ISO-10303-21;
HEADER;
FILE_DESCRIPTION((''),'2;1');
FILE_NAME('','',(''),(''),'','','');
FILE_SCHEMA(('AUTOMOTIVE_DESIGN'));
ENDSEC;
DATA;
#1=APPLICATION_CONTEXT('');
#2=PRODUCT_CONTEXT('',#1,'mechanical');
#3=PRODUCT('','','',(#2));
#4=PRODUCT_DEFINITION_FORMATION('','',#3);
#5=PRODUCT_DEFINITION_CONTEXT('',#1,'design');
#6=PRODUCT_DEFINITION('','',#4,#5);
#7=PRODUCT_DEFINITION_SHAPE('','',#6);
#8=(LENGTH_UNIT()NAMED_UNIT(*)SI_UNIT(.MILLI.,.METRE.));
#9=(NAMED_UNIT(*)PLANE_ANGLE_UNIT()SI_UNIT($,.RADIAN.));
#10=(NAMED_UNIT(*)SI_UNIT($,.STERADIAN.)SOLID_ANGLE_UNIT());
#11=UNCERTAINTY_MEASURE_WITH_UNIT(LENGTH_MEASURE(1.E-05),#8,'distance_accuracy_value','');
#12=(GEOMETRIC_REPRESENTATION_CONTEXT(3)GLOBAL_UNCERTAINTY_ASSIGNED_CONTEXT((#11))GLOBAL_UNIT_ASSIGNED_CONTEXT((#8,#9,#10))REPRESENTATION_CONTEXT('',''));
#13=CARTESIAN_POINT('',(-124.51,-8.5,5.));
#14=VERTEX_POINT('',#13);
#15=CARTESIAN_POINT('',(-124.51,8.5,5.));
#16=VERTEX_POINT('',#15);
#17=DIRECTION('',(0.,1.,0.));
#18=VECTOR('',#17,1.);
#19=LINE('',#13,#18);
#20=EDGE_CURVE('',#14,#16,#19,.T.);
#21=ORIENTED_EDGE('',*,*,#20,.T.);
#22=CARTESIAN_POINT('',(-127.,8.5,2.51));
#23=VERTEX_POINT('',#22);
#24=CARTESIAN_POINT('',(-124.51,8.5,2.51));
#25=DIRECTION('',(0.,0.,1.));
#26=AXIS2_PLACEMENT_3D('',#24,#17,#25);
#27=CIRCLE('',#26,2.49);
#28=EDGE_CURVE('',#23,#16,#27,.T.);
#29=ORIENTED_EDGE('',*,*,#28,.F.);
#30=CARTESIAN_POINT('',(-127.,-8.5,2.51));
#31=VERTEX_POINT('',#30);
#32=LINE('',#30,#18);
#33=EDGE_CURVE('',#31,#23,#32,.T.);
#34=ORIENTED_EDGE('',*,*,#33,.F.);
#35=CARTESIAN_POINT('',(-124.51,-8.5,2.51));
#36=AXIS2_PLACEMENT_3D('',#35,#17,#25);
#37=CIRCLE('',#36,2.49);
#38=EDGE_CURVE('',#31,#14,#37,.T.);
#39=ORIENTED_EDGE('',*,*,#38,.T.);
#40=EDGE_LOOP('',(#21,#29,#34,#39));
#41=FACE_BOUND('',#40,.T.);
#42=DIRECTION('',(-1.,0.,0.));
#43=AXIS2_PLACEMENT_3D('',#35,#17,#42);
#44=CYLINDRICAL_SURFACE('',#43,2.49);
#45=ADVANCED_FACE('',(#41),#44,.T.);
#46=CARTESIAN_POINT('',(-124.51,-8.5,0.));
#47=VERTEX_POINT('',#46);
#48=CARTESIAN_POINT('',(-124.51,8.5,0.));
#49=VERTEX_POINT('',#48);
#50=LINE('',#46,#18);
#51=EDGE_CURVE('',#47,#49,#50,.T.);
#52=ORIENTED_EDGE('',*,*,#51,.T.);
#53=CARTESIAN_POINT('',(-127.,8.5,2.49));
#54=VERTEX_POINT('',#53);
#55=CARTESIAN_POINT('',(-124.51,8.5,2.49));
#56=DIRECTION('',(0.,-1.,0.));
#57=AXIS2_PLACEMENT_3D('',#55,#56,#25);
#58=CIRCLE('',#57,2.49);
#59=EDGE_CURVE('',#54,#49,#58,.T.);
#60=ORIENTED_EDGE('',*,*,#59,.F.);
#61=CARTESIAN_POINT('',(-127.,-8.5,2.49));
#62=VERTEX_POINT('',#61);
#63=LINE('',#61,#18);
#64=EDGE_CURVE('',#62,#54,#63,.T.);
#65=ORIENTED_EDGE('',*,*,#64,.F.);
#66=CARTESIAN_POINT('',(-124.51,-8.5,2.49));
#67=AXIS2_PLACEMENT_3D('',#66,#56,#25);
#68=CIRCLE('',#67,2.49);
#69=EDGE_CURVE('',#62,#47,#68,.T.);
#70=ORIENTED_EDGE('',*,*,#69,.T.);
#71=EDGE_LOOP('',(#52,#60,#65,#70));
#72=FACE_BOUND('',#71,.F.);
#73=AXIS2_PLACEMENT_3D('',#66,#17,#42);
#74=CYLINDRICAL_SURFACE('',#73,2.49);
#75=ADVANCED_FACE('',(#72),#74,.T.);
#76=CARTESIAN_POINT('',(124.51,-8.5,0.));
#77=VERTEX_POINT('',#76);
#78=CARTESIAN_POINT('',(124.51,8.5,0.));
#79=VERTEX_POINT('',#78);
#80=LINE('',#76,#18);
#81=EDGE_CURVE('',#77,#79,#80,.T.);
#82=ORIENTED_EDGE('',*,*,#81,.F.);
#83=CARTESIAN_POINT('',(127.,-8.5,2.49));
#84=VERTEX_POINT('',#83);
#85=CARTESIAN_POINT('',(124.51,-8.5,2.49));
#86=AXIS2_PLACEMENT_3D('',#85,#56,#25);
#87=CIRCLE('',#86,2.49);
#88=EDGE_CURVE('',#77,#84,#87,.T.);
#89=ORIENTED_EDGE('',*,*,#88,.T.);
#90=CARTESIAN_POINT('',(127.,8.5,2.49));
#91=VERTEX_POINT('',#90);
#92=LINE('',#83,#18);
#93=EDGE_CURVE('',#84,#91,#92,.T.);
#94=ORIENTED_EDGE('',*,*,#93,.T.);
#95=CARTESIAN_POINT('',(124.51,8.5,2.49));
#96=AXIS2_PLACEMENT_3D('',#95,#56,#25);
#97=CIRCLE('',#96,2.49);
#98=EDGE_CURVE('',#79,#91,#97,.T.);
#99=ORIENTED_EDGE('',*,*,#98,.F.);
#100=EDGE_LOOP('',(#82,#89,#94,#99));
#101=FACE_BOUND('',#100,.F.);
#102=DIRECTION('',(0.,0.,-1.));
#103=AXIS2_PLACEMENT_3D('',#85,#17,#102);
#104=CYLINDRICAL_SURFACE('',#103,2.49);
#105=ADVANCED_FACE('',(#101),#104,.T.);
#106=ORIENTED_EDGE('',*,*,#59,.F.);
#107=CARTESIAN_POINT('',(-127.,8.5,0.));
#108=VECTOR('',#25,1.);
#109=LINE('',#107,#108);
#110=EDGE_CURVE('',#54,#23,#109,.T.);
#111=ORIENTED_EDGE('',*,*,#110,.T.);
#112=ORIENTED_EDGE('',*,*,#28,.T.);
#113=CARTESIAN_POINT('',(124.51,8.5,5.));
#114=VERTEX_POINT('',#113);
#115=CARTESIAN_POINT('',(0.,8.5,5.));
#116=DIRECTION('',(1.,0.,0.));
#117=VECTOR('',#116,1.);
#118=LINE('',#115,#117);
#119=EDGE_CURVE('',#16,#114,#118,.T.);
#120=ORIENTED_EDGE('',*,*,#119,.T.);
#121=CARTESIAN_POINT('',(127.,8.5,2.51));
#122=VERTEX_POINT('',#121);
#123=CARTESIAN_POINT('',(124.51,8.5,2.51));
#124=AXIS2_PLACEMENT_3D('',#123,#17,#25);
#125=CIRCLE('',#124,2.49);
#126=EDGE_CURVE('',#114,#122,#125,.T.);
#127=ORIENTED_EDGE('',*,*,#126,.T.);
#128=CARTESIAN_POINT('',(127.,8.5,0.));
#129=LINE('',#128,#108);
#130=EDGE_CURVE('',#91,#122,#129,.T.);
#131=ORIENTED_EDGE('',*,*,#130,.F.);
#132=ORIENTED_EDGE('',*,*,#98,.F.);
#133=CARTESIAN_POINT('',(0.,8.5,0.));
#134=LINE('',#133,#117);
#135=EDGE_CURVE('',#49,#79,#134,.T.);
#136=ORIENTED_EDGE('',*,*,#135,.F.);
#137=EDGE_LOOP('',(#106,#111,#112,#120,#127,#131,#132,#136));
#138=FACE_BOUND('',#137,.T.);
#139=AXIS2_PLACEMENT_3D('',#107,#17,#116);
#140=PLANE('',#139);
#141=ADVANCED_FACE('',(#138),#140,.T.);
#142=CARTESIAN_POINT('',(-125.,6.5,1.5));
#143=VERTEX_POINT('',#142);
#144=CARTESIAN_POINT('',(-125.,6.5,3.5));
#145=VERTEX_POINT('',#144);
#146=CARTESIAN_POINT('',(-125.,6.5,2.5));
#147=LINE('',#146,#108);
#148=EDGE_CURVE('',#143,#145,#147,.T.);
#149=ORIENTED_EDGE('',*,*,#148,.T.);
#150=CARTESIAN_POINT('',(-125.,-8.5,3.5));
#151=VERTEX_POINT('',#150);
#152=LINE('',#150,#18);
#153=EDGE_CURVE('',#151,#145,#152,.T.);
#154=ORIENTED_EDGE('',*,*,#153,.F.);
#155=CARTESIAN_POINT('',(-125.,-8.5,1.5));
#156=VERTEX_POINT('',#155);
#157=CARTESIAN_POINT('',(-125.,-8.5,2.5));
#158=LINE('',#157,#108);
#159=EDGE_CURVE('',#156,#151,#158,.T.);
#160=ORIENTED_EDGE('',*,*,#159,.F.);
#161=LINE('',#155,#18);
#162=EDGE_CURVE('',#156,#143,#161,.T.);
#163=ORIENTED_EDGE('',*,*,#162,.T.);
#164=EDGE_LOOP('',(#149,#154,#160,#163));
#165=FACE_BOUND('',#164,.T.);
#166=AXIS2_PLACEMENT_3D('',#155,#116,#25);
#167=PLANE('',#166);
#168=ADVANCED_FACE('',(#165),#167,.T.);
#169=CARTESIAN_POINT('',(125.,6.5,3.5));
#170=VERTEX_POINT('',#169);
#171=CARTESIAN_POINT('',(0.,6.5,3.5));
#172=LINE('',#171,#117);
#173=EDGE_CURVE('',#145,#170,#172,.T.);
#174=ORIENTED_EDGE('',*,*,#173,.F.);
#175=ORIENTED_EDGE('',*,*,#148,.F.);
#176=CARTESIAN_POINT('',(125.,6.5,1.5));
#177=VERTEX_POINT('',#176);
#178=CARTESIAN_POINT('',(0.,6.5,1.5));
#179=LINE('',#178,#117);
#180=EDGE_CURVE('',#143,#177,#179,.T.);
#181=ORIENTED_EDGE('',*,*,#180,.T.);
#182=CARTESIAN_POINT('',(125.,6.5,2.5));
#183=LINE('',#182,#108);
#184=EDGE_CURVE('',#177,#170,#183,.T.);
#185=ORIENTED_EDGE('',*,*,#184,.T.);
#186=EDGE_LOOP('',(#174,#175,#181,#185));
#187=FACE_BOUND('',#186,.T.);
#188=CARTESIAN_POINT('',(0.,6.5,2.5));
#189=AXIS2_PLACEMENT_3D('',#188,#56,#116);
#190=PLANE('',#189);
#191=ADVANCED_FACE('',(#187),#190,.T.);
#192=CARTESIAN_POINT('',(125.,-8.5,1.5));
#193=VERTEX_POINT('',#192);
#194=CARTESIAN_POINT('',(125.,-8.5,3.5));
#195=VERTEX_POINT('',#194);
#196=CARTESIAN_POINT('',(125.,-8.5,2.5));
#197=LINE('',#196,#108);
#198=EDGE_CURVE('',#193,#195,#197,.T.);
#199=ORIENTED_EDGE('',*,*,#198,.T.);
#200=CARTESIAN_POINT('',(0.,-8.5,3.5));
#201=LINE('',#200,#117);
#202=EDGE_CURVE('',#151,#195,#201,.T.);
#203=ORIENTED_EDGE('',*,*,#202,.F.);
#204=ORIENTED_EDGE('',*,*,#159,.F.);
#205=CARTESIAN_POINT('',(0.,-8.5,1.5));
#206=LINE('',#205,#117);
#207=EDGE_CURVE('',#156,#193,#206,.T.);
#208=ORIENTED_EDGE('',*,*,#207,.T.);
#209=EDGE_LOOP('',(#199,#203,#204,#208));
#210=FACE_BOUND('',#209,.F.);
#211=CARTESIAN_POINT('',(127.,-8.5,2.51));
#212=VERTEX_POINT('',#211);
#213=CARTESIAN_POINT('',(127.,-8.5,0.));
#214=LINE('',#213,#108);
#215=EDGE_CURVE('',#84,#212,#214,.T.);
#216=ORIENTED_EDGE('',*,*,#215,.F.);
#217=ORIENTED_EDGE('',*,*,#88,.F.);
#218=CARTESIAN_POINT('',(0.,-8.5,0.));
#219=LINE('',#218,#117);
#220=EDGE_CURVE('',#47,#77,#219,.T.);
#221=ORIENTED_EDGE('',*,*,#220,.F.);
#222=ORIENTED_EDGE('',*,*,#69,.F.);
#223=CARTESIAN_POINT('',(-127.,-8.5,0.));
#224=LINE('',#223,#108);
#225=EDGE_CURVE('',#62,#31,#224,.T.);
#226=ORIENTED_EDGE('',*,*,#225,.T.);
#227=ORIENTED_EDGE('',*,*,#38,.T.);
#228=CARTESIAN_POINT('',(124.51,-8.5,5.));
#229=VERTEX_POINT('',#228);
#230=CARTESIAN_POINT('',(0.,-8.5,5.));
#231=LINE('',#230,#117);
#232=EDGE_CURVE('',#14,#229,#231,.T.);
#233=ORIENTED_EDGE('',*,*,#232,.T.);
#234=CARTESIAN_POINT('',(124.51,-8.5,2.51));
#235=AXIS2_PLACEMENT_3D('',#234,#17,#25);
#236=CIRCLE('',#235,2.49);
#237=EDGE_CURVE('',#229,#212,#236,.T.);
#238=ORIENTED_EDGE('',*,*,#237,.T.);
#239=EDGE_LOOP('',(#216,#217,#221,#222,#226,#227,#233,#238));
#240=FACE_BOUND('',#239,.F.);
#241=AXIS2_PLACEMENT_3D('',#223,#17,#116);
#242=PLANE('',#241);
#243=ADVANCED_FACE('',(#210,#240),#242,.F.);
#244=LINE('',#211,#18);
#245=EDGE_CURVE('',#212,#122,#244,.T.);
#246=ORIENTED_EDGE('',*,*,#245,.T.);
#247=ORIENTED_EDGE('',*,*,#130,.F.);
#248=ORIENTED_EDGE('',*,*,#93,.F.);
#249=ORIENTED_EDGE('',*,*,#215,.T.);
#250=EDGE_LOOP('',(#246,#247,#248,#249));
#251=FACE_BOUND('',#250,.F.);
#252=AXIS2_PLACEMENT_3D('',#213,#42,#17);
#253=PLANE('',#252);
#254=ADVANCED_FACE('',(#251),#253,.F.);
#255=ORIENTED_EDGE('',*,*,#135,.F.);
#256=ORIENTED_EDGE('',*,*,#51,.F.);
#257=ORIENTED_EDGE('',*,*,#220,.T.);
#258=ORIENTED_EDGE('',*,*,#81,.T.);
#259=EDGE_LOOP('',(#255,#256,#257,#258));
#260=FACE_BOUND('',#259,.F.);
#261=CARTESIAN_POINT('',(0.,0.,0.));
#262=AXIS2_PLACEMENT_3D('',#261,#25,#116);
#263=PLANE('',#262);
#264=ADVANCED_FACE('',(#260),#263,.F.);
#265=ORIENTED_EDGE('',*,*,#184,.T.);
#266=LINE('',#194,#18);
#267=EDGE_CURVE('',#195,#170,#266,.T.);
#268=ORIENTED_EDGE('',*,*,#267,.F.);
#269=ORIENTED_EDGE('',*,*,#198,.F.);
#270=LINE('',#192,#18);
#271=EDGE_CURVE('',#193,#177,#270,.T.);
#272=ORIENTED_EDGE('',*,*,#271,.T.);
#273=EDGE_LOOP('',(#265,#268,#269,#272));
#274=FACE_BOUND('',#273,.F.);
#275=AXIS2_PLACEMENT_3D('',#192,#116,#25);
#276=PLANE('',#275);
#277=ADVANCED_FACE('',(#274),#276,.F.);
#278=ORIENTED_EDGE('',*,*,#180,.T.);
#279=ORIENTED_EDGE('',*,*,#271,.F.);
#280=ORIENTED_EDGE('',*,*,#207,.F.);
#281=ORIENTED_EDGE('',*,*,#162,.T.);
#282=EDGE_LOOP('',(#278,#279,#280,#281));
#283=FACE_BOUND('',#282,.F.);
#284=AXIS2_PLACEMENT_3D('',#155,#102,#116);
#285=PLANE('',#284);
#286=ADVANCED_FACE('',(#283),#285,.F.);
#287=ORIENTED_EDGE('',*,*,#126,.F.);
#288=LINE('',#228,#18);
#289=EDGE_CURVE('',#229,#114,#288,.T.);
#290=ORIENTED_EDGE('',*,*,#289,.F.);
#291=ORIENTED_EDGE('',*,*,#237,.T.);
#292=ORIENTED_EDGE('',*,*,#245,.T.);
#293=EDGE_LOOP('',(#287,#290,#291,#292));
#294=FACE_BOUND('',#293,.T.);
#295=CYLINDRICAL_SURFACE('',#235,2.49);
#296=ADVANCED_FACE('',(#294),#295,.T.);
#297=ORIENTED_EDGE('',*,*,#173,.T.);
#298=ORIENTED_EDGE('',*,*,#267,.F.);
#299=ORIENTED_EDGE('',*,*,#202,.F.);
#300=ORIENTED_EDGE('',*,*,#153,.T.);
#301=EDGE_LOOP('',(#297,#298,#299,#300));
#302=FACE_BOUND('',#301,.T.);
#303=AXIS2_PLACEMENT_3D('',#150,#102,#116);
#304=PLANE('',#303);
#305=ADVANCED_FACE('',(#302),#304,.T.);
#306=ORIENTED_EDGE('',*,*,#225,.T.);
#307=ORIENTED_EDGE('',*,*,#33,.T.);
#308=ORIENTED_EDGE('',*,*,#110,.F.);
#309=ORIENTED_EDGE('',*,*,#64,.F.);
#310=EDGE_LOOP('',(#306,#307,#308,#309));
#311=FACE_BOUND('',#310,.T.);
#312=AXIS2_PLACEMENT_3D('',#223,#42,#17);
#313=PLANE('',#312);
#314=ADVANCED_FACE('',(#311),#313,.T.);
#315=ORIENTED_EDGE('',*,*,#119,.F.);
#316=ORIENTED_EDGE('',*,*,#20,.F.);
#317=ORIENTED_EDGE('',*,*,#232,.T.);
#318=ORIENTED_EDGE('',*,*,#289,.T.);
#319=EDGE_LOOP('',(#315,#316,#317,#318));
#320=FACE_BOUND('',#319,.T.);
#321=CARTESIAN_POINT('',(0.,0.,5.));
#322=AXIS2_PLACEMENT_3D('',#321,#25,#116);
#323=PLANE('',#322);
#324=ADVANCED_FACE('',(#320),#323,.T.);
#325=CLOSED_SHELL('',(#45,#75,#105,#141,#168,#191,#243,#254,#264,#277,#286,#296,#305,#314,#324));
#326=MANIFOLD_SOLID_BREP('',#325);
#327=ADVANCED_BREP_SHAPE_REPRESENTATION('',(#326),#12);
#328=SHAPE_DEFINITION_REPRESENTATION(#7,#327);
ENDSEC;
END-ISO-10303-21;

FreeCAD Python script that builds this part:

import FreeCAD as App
import Part
import Sketcher

V = App.Vector
Q = App.Units.Quantity


def edges_at(feature, points):
    """Names of the edges that pass closest to the given points."""
    edges = feature.Shape.Edges
    near = lambda p: min(range(len(edges)), key=lambda i: edges[i].distToShape(Part.Vertex(*p))[0])
    return sorted({f"Edge{near(p) + 1}" for p in points})

doc = App.newDocument("Part")
body = doc.addObject("PartDesign::Body", "Body")

sketch1 = body.newObject("Sketcher::SketchObject", "Sketch")
sketch1.AttachmentSupport = (doc.getObject("XY_Plane"), [""])
sketch1.MapMode = "FlatFace"
sketch1.addGeometry([
    Part.LineSegment(V(-127, 8, 0), V(-127, -8, 0)),
    Part.LineSegment(V(-127, -8, 0), V(127, -8, 0)),
    Part.LineSegment(V(127, -8, 0), V(127, 8, 0)),
    Part.LineSegment(V(127, 8, 0), V(-127, 8, 0)),
], False)
sketch1.addConstraint([
    Sketcher.Constraint("Coincident", 0, 2, 1, 1),
    Sketcher.Constraint("Coincident", 1, 2, 2, 1),
    Sketcher.Constraint("Coincident", 2, 2, 3, 1),
    Sketcher.Constraint("Coincident", 3, 2, 0, 1),
    Sketcher.Constraint("Vertical", 0),
    Sketcher.Constraint("Horizontal", 1),
    Sketcher.Constraint("Vertical", 2),
    Sketcher.Constraint("Horizontal", 3),
    Sketcher.Constraint("Symmetric", 0, 2, 2, 2, -1, 1),
    Sketcher.Constraint("DistanceX", 1, 1, 1, 2, Q("254 mm")),
    Sketcher.Constraint("DistanceY", 0, 2, 0, 1, Q("17 mm")),
])
pad1 = body.newObject("PartDesign::Pad", "Pad")
pad1.Profile = sketch1
pad1.Length = 5

sketch2 = body.newObject("Sketcher::SketchObject", "Sketch001")
sketch2.AttachmentSupport = (doc.getObject("XZ_Plane"), [""])
sketch2.MapMode = "FlatFace"
sketch2.AttachmentOffset = App.Placement(V(0, 0, 8.5), App.Rotation())
sketch2.addGeometry([
    Part.LineSegment(V(-125, 3.5, 0), V(-125, 1.5, 0)),
    Part.LineSegment(V(-125, 1.5, 0), V(125, 1.5, 0)),
    Part.LineSegment(V(125, 1.5, 0), V(125, 3.5, 0)),
    Part.LineSegment(V(125, 3.5, 0), V(-125, 3.5, 0)),
], False)
sketch2.addConstraint([
    Sketcher.Constraint("Coincident", 0, 2, 1, 1),
    Sketcher.Constraint("Coincident", 1, 2, 2, 1),
    Sketcher.Constraint("Coincident", 2, 2, 3, 1),
    Sketcher.Constraint("Coincident", 3, 2, 0, 1),
    Sketcher.Constraint("Vertical", 0),
    Sketcher.Constraint("Horizontal", 1),
    Sketcher.Constraint("Vertical", 2),
    Sketcher.Constraint("Horizontal", 3),
    Sketcher.Constraint("DistanceX", 1, 1, 1, 2, Q("250 mm")),
    Sketcher.Constraint("DistanceY", 0, 2, 0, 1, Q("2 mm")),
    Sketcher.Constraint("DistanceX", 0, 2, -1, 1, Q("125 mm")),
    Sketcher.Constraint("DistanceY", -1, 1, 0, 2, Q("1.5 mm")),
])
pocket1 = body.newObject("PartDesign::Pocket", "Pocket")
pocket1.Profile = sketch2
pocket1.Length = 15
doc.recompute()

fillet = body.newObject("PartDesign::Fillet", "Fillet")
fillet.Base = (pocket1, edges_at(pocket1, [
    (127, 0, 5),
    (127, 0, 0),
    (-127, 0, 0),
    (-127, 0, 5),
]))
fillet.Radius = 2.49

doc.recompute()
